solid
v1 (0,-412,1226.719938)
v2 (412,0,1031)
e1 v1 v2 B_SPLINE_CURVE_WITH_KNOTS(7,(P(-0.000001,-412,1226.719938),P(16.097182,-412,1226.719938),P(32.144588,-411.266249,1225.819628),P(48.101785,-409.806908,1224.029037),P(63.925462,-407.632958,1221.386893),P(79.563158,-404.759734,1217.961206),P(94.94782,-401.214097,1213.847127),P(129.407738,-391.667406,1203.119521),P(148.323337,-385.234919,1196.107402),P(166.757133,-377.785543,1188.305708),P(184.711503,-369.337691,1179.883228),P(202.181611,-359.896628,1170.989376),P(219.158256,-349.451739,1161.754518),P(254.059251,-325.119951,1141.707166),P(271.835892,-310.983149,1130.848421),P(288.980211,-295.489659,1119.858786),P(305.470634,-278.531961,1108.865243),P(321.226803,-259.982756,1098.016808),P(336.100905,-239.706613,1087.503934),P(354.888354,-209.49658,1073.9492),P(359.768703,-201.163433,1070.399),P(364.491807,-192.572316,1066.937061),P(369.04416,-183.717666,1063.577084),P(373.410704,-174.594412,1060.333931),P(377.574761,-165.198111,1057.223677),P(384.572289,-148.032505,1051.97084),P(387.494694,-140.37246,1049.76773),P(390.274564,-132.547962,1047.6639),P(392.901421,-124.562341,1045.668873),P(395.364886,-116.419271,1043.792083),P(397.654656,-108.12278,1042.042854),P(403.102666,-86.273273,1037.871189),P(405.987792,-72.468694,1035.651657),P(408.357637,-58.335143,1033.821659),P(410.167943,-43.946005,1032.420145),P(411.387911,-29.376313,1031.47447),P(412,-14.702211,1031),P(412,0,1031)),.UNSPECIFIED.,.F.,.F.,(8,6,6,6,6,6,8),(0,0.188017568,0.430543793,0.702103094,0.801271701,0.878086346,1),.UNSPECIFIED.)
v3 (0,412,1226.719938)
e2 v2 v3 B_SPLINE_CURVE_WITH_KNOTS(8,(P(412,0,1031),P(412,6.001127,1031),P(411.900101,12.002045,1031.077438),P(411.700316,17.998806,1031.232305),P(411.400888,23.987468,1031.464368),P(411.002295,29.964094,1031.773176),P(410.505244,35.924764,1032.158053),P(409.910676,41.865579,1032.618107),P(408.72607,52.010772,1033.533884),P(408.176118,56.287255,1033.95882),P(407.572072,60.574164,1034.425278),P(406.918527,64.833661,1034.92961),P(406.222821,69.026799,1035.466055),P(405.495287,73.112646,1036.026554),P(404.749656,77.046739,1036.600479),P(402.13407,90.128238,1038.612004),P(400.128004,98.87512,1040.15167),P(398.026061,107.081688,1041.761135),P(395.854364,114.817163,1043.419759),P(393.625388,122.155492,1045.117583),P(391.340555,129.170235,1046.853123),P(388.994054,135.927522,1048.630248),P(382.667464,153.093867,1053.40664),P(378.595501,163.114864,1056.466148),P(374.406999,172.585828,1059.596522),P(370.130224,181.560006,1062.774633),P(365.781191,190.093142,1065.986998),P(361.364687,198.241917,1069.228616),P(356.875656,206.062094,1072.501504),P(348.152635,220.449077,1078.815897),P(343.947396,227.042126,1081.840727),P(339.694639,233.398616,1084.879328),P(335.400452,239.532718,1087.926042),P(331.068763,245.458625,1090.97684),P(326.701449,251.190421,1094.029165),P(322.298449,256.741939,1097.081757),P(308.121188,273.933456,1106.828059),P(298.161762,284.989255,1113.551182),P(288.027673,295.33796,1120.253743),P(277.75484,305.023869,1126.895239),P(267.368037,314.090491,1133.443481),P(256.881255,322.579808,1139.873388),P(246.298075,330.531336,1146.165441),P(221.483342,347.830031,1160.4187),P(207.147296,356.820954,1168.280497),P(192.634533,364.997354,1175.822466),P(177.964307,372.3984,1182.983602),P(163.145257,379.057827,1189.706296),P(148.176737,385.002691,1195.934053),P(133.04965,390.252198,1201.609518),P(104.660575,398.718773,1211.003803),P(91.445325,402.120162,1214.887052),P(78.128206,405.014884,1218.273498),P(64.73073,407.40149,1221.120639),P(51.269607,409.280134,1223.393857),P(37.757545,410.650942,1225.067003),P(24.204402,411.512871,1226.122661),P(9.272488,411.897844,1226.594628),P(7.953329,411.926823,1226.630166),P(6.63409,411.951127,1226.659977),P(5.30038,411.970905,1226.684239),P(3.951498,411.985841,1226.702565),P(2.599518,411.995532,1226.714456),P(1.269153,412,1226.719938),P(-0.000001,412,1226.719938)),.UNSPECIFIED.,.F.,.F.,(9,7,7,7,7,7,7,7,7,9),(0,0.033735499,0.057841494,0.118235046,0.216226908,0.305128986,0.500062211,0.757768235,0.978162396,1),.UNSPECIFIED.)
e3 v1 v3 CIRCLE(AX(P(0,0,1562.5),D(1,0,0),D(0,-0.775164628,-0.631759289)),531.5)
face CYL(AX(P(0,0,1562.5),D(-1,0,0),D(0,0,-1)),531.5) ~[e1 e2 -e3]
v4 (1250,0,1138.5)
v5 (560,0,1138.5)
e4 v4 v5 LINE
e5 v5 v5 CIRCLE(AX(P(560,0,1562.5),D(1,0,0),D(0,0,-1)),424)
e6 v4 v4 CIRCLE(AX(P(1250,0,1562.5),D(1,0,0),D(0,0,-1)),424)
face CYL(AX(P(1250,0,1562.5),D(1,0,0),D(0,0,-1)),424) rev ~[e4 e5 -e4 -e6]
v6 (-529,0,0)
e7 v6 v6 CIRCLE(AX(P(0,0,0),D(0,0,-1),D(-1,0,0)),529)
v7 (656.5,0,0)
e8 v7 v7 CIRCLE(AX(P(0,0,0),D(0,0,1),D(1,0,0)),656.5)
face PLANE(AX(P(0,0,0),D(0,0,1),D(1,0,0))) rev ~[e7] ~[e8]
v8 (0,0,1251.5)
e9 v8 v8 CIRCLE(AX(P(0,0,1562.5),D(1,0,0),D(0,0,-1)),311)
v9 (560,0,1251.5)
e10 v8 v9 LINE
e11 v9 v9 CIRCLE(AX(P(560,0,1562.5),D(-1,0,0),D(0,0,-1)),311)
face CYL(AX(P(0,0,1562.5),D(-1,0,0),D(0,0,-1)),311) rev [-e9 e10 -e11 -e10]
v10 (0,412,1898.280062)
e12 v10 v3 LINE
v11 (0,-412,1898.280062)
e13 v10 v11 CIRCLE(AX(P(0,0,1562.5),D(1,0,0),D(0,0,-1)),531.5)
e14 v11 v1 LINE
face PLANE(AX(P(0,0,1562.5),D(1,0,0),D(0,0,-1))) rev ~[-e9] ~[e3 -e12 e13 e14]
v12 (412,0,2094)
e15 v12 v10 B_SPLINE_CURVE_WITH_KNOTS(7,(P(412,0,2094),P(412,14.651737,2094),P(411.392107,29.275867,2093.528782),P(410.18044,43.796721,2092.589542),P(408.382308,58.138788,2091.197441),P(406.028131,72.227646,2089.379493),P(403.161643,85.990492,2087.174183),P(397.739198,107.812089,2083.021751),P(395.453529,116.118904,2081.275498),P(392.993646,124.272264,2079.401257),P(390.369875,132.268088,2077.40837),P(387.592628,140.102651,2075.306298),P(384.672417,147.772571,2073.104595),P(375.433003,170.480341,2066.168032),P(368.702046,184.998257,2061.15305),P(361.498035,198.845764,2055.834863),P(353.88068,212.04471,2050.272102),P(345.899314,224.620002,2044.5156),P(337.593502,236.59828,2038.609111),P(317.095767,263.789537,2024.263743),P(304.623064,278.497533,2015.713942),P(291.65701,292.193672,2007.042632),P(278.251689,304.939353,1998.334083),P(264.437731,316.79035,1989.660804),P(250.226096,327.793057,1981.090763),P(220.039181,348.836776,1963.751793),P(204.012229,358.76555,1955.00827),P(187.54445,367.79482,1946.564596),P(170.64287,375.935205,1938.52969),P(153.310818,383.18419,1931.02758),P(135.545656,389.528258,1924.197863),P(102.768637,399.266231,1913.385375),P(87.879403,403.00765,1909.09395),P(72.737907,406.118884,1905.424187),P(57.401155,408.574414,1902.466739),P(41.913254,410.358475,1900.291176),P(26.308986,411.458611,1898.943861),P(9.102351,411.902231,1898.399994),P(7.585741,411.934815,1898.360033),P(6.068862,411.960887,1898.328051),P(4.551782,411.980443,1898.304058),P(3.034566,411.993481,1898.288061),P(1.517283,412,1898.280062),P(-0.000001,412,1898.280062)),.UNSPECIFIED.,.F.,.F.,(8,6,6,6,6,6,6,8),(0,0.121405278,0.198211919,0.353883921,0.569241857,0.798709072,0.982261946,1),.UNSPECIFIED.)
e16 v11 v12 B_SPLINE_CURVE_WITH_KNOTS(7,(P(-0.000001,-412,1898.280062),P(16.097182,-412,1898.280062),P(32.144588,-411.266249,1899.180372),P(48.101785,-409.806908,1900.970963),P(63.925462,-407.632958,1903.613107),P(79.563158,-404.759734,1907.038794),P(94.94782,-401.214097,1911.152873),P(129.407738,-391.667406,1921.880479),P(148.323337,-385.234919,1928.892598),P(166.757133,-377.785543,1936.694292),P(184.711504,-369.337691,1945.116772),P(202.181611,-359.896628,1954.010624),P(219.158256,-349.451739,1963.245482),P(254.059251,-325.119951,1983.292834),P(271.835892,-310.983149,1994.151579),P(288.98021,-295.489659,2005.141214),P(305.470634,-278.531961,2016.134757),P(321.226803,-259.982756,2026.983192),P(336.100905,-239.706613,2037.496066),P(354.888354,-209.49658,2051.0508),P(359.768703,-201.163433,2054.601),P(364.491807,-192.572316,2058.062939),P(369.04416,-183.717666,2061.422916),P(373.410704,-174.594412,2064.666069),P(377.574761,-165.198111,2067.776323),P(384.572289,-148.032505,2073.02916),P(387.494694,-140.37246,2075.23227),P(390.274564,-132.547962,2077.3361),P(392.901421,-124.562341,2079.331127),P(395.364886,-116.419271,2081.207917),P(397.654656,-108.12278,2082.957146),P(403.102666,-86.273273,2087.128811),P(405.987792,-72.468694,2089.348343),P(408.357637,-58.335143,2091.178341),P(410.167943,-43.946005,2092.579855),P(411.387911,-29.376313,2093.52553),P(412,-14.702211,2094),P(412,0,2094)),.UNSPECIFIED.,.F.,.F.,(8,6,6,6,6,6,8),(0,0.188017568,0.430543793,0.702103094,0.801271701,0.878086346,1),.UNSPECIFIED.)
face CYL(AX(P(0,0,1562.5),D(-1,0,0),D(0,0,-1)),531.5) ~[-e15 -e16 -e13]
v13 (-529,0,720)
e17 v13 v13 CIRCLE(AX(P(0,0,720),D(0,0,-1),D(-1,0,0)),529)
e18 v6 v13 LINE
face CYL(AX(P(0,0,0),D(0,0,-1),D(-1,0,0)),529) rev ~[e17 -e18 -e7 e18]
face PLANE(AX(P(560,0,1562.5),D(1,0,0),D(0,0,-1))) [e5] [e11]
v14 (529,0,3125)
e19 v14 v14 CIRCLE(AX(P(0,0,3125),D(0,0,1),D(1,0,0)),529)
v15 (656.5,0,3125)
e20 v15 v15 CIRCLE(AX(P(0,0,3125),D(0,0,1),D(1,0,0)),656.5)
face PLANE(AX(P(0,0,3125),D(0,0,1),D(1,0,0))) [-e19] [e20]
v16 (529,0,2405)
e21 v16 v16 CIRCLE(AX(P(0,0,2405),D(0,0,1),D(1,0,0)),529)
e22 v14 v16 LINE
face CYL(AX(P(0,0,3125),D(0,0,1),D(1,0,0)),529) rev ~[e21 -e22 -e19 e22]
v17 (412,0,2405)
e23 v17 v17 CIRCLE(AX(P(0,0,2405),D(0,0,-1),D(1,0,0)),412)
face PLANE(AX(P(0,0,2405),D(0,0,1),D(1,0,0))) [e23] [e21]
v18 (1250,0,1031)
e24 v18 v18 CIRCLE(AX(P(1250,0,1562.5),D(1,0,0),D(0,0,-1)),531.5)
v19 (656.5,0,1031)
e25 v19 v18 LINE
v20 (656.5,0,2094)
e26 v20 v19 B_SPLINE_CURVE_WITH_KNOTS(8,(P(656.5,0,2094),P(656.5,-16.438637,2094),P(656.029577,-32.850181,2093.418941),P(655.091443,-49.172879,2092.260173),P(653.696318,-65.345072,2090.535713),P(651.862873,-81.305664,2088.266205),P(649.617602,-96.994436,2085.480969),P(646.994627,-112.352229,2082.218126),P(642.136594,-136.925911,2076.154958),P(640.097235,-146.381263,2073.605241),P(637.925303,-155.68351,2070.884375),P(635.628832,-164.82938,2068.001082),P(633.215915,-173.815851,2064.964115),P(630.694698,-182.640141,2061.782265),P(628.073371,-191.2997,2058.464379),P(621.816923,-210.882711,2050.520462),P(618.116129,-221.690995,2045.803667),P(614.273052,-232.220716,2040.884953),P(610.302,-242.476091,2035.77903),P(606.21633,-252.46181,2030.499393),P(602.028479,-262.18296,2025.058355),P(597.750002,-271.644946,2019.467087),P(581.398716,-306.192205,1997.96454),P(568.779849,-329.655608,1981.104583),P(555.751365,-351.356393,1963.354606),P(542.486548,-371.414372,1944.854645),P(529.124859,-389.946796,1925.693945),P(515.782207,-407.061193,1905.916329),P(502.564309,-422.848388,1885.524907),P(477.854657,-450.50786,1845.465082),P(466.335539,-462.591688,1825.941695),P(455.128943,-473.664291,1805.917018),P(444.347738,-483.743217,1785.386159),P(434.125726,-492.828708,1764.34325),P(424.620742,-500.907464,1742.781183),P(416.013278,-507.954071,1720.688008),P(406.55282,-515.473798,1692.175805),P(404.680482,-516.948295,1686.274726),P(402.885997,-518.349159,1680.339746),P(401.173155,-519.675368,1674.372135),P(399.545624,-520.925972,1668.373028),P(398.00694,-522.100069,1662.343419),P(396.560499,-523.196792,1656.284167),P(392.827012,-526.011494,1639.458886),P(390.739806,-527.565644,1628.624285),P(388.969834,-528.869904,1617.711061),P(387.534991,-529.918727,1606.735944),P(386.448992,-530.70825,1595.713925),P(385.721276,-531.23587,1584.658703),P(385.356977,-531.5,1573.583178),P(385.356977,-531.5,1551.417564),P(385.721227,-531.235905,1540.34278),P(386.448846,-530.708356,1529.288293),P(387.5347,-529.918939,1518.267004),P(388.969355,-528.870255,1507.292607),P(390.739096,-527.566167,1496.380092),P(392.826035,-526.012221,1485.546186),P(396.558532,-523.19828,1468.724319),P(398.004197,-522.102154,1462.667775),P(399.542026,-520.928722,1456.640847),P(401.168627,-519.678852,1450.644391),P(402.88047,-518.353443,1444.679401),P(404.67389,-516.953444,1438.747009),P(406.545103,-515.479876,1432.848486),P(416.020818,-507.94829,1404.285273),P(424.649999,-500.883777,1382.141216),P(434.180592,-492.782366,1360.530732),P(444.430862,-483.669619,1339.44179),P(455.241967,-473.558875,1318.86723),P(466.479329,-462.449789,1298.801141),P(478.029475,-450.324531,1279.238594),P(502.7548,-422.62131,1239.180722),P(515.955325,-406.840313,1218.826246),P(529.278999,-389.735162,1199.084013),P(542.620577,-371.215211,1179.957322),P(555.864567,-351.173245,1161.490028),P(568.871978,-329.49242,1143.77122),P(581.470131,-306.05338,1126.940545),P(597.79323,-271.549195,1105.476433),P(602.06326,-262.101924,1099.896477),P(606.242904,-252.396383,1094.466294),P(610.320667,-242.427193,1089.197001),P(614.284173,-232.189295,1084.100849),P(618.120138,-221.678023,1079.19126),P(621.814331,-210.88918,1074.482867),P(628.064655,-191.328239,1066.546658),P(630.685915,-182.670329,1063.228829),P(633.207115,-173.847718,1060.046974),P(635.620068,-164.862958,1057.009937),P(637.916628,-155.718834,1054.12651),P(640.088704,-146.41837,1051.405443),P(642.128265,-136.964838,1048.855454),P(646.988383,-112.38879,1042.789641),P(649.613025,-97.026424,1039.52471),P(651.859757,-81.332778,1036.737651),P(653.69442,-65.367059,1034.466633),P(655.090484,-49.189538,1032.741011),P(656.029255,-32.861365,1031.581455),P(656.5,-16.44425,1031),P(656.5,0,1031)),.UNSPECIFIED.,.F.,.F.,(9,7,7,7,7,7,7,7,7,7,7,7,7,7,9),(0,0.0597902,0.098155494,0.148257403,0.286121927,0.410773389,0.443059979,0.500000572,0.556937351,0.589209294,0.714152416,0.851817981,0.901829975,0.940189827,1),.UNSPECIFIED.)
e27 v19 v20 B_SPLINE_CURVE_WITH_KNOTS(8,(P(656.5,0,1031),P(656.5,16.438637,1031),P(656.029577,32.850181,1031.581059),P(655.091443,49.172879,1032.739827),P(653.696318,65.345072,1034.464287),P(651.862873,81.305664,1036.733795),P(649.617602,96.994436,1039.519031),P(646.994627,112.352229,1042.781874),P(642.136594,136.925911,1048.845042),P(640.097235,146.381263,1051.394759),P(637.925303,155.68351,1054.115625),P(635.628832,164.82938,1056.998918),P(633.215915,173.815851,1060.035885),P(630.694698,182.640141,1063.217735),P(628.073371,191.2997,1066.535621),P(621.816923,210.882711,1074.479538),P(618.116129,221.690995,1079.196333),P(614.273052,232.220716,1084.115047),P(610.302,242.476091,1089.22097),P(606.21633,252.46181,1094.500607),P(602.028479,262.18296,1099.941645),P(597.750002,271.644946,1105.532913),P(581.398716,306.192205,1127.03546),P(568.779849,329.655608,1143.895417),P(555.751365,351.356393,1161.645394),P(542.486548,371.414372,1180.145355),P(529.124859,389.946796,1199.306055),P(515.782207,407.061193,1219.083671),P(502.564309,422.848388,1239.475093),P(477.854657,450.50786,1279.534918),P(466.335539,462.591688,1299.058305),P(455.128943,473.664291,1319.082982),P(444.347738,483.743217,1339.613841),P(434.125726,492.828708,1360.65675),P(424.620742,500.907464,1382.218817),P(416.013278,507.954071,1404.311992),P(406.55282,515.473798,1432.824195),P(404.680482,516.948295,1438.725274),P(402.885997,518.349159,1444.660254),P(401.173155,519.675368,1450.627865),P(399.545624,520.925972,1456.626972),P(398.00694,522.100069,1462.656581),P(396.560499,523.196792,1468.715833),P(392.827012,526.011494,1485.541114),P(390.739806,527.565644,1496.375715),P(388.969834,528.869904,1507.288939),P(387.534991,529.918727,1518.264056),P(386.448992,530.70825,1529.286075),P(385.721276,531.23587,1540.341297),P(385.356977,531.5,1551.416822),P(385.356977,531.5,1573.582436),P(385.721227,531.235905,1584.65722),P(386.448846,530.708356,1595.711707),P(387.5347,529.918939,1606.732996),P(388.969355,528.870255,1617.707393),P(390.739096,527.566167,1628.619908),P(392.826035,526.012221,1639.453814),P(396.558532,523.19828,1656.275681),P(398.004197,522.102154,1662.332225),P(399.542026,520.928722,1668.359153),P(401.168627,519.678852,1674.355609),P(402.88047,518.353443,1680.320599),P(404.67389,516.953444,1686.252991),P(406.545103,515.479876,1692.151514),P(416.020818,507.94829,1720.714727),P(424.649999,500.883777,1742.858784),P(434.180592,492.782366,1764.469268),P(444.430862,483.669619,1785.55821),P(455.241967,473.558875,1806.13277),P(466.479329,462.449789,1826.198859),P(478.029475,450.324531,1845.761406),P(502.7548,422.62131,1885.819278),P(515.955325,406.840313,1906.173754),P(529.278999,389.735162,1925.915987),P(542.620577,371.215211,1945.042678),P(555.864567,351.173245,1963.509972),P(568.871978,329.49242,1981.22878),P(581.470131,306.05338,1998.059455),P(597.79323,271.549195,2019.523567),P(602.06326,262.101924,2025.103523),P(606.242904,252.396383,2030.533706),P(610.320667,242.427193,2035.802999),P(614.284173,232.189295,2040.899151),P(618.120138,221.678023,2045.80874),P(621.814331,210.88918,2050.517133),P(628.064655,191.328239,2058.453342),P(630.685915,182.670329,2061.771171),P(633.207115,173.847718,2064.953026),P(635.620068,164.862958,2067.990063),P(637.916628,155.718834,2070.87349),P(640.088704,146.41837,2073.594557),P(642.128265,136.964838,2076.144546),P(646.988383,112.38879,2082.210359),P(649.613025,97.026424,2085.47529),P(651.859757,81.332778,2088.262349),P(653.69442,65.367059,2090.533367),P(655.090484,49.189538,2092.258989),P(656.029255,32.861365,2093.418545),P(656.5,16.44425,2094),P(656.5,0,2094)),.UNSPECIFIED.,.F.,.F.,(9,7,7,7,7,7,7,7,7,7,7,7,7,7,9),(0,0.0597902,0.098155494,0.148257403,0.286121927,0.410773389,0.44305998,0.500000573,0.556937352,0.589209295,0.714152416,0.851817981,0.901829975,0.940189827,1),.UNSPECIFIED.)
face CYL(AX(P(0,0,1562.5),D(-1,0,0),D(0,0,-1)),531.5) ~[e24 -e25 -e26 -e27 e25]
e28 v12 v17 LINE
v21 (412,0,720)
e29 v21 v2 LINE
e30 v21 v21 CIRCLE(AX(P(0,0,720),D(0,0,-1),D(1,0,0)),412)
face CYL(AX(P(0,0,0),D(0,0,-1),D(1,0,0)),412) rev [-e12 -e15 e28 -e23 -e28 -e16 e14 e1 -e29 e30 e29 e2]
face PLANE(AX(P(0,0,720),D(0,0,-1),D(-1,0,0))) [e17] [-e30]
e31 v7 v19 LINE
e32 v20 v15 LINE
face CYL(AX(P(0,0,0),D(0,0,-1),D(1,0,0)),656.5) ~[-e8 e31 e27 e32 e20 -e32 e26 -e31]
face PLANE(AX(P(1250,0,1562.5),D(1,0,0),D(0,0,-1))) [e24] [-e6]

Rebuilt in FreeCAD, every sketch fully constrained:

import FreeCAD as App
import Part
import Sketcher
from FreeCAD import Vector

doc = App.newDocument("Part")
body = doc.addObject("PartDesign::Body", "Body")

# Sketch on XY plane
sketch1 = body.newObject("Sketcher::SketchObject", "Sketch")
sketch1.AttachmentSupport = (doc.getObject("XY_Plane"), [""])
sketch1.MapMode = "FlatFace"
sketch1.addGeometry(Part.Circle(Vector(0, 0, 0), Vector(0, 0, 1), 656), False)
sketch1.addGeometry(Part.Circle(Vector(0, 0, 0), Vector(0, 0, 1), 412), False)
sketch1.addConstraint(Sketcher.Constraint("Coincident", 0, 3, -1, 1))
sketch1.addConstraint(Sketcher.Constraint("Coincident", 1, 3, -1, 1))
sketch1.addConstraint(Sketcher.Constraint("Diameter", 0, 1313.0))
sketch1.addConstraint(Sketcher.Constraint("Diameter", 1, 824.0))
pad1 = body.newObject("PartDesign::Pad", "Pad")
pad1.Profile = sketch1
pad1.Length = 3125

# Sketch on XY plane
sketch2 = body.newObject("Sketcher::SketchObject", "Sketch001")
sketch2.AttachmentSupport = (doc.getObject("XY_Plane"), [""])
sketch2.MapMode = "FlatFace"
sketch2.AttachmentOffset = App.Placement(Vector(0, 0, 3125), App.Rotation())
sketch2.addGeometry(Part.Circle(Vector(0, 0, 0), Vector(0, 0, 1), 529), False)
sketch2.addConstraint(Sketcher.Constraint("Coincident", 0, 3, -1, 1))
sketch2.addConstraint(Sketcher.Constraint("Diameter", 0, 1058.0))
pocket1 = body.newObject("PartDesign::Pocket", "Pocket")
pocket1.Profile = sketch2
pocket1.Length = 720

# Sketch on XY plane
sketch3 = body.newObject("Sketcher::SketchObject", "Sketch002")
sketch3.AttachmentSupport = (doc.getObject("XY_Plane"), [""])
sketch3.MapMode = "FlatFace"
sketch3.addGeometry(Part.Circle(Vector(0, 0, 0), Vector(0, 0, 1), 529), False)
sketch3.addConstraint(Sketcher.Constraint("Coincident", 0, 3, -1, 1))
sketch3.addConstraint(Sketcher.Constraint("Diameter", 0, 1058.0))
pocket2 = body.newObject("PartDesign::Pocket", "Pocket001")
pocket2.Profile = sketch3
pocket2.Length = 720
pocket2.Reversed = True

# Sketch on YZ plane
sketch4 = body.newObject("Sketcher::SketchObject", "Sketch003")
sketch4.AttachmentSupport = (doc.getObject("YZ_Plane"), [""])
sketch4.MapMode = "FlatFace"
sketch4.addGeometry(Part.Circle(Vector(0, 1562, 0), Vector(0, 0, 1), 532), False)
sketch4.addGeometry(Part.Circle(Vector(0, 1562, 0), Vector(0, 0, 1), 311), False)
sketch4.addConstraint(Sketcher.Constraint("Coincident", 1, 3, 0, 3))
sketch4.addConstraint(Sketcher.Constraint("PointOnObject", 0, 3, -2))
sketch4.addConstraint(Sketcher.Constraint("Diameter", 0, 1063.0))
sketch4.addConstraint(Sketcher.Constraint("Diameter", 1, 622.0))
sketch4.addConstraint(Sketcher.Constraint("DistanceY", -1, 1, 0, 3, 1562.5))
pad2 = body.newObject("PartDesign::Pad", "Pad001")
pad2.Profile = sketch4
pad2.Length = 1250

# Sketch on YZ plane
sketch5 = body.newObject("Sketcher::SketchObject", "Sketch004")
sketch5.AttachmentSupport = (doc.getObject("YZ_Plane"), [""])
sketch5.MapMode = "FlatFace"
sketch5.addGeometry(Part.Circle(Vector(0, 1562, 0), Vector(0, 0, 1), 311), False)
sketch5.addConstraint(Sketcher.Constraint("PointOnObject", 0, 3, -2))
sketch5.addConstraint(Sketcher.Constraint("Diameter", 0, 622.0))
sketch5.addConstraint(Sketcher.Constraint("DistanceY", -1, 1, 0, 3, 1562.5))
pocket3 = body.newObject("PartDesign::Pocket", "Pocket002")
pocket3.Profile = sketch5
pocket3.Length = 1250
pocket3.Reversed = True

# Sketch on YZ plane
sketch6 = body.newObject("Sketcher::SketchObject", "Sketch005")
sketch6.AttachmentSupport = (doc.getObject("YZ_Plane"), [""])
sketch6.MapMode = "FlatFace"
sketch6.AttachmentOffset = App.Placement(Vector(0, 0, 1250), App.Rotation())
sketch6.addGeometry(Part.Circle(Vector(0, 1562, 0), Vector(0, 0, 1), 424), False)
sketch6.addConstraint(Sketcher.Constraint("PointOnObject", 0, 3, -2))
sketch6.addConstraint(Sketcher.Constraint("Diameter", 0, 848.0))
sketch6.addConstraint(Sketcher.Constraint("DistanceY", -1, 1, 0, 3, 1562.5))
pocket4 = body.newObject("PartDesign::Pocket", "Pocket003")
pocket4.Profile = sketch6
pocket4.Length = 690

doc.recompute()
